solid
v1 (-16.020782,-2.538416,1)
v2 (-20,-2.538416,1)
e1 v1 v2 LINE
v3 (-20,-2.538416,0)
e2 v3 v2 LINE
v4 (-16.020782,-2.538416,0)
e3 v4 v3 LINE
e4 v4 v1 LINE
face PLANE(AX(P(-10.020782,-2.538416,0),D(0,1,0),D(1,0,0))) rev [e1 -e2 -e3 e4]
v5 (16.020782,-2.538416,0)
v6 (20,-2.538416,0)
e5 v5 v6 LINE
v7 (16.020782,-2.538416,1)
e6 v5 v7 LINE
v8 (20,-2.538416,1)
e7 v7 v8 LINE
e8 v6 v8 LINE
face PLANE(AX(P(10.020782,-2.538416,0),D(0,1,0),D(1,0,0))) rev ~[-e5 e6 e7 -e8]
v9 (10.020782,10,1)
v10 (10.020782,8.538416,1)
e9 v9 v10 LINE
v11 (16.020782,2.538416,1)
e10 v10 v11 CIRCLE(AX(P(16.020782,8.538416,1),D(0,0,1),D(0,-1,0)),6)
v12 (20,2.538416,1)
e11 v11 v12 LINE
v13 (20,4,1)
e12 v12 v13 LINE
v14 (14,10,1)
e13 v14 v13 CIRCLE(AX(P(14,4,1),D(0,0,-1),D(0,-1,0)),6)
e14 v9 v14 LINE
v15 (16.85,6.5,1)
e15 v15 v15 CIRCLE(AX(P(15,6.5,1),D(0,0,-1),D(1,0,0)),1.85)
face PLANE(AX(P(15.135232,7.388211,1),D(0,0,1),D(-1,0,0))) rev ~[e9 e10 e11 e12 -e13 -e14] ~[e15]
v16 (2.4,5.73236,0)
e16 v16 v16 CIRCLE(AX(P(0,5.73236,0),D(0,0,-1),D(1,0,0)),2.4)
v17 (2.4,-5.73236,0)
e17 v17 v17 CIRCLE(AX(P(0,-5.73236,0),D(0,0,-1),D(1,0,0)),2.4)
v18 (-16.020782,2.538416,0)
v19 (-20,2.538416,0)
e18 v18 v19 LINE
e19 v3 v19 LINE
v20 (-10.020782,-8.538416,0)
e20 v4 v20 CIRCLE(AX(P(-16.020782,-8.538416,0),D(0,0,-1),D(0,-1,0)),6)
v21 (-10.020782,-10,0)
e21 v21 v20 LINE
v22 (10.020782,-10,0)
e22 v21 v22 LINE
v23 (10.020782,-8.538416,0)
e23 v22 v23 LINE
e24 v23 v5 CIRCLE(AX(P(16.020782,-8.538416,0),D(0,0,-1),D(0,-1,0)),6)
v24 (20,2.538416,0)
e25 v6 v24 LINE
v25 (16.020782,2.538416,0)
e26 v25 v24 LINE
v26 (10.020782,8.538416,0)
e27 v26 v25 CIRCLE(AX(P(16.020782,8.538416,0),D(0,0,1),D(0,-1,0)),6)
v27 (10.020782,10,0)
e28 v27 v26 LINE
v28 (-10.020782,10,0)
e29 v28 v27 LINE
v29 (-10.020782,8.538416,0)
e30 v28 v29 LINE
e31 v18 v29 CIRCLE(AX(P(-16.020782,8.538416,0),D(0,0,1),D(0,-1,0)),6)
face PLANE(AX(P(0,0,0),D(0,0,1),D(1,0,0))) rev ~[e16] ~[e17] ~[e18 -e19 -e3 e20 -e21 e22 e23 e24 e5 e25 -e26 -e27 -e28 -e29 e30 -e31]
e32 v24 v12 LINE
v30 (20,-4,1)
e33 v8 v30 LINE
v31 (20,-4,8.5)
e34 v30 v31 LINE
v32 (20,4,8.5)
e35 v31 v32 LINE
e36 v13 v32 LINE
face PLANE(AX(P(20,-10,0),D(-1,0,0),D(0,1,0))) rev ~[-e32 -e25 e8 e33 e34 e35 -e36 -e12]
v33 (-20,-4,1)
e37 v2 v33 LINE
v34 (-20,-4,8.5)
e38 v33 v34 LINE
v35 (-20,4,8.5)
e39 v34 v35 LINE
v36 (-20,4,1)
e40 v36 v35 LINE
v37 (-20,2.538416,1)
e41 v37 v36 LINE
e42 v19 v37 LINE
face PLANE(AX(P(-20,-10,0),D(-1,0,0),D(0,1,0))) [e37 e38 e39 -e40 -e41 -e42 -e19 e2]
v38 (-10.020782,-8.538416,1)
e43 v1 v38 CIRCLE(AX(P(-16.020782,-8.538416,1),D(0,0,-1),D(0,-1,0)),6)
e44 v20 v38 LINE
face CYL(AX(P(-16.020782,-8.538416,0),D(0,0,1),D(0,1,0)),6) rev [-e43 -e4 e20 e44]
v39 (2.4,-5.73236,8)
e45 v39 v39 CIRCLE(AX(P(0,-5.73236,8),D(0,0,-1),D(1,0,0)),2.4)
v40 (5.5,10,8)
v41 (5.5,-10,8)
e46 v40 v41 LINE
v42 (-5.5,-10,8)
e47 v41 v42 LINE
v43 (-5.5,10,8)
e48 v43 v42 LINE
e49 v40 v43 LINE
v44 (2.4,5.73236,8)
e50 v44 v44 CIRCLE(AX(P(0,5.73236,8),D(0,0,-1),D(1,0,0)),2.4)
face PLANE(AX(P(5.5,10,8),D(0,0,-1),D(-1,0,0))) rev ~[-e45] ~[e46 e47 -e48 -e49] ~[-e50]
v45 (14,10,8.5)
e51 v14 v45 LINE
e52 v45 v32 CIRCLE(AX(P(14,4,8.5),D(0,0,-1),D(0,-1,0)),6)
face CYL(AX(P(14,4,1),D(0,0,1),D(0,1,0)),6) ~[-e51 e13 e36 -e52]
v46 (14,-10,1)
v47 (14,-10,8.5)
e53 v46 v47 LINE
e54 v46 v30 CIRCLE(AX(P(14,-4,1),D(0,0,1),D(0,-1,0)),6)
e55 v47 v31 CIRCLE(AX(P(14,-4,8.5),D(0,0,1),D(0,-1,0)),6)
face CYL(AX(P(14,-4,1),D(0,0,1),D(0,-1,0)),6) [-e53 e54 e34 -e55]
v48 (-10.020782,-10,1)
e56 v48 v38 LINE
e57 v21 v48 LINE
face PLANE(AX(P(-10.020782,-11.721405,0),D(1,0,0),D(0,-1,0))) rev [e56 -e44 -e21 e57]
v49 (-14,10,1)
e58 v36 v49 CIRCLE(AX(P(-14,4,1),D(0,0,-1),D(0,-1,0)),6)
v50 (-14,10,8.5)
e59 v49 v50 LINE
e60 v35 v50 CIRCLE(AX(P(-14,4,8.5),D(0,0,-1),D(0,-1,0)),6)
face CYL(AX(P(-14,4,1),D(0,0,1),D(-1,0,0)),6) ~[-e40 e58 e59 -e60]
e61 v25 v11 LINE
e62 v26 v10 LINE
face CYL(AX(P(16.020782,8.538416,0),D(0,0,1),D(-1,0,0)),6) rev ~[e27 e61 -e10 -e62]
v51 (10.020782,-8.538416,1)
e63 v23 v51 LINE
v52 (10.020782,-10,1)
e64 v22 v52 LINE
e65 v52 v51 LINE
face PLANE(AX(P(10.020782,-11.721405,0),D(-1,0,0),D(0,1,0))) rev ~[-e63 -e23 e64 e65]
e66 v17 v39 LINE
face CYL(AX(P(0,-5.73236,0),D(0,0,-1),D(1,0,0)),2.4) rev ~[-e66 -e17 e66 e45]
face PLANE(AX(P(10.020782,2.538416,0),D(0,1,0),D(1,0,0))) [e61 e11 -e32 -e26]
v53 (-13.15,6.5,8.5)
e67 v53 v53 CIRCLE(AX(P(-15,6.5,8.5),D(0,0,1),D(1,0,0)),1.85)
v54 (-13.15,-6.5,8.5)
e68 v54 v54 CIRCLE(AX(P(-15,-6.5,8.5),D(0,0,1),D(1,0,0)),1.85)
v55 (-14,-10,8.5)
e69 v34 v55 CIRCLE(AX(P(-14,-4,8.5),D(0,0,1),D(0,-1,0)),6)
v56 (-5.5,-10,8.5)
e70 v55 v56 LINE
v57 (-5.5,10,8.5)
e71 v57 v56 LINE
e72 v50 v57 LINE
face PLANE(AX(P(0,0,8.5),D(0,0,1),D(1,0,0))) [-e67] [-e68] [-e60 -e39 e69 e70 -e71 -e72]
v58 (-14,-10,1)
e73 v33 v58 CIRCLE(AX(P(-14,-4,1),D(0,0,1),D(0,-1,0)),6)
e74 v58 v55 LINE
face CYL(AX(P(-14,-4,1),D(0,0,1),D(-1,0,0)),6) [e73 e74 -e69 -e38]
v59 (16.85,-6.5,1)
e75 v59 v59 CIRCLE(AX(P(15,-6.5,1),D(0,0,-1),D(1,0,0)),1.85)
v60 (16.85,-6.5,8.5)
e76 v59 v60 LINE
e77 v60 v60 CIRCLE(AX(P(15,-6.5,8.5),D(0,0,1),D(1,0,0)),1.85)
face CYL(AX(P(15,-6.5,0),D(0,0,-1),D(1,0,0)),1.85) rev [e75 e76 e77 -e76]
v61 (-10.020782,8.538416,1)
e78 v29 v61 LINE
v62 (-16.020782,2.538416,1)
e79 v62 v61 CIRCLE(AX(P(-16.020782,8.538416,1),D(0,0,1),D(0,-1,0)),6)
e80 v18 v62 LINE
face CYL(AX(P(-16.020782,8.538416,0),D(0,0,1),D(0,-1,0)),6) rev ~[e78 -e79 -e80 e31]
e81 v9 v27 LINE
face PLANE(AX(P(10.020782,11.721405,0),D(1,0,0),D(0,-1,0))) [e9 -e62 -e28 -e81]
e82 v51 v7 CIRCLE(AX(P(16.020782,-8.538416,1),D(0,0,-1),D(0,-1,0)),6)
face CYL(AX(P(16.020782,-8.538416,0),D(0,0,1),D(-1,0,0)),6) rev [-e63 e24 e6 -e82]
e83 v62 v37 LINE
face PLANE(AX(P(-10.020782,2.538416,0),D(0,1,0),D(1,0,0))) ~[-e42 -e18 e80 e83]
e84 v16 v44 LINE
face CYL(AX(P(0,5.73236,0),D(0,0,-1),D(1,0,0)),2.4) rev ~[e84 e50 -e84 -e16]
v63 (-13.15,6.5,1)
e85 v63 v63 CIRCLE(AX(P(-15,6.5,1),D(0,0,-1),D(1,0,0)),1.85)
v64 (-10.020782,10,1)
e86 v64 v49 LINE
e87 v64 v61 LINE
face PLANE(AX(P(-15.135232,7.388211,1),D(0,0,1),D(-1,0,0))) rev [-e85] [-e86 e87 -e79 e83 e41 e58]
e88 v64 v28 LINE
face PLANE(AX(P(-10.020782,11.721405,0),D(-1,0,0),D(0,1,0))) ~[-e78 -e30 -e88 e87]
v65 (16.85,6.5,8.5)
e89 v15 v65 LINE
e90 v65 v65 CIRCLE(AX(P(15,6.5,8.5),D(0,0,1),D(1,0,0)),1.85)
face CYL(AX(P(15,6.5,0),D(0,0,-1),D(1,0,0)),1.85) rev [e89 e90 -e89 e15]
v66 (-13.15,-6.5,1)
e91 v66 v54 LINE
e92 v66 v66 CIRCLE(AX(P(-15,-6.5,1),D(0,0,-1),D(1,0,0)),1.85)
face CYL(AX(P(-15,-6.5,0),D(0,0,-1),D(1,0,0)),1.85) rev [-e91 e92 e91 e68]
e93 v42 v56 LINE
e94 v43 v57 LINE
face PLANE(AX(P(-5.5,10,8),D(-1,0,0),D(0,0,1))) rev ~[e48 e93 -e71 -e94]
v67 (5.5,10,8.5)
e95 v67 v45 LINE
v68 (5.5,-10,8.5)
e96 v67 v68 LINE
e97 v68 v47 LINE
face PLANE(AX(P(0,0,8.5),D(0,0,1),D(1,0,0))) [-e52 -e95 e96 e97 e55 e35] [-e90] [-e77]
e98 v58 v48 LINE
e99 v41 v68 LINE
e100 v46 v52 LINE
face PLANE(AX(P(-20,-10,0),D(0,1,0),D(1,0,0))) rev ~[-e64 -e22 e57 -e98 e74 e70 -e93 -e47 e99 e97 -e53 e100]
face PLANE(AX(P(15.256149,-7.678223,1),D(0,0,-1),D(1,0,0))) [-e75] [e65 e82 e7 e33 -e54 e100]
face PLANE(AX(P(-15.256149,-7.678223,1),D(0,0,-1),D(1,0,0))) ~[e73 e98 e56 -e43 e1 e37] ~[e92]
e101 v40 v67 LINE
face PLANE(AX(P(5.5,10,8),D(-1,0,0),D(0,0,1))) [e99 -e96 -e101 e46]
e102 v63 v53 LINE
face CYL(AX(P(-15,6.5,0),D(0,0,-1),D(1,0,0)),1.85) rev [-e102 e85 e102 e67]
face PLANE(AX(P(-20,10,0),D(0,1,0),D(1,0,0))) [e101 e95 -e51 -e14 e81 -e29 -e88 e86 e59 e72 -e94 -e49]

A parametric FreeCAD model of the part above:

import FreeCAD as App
import Part
import Sketcher
from FreeCAD import Vector


def edges_at(feature, points):
    """Names of the edges that pass closest to the given points."""
    edges = feature.Shape.Edges
    near = lambda p: min(range(len(edges)), key=lambda i: edges[i].distToShape(Part.Vertex(*p))[0])
    return sorted({f"Edge{near(p) + 1}" for p in points})

doc = App.newDocument("Part")
body = doc.addObject("PartDesign::Body", "Body")

sketch1 = body.newObject("Sketcher::SketchObject", "Sketch")
sketch1.AttachmentSupport = (doc.getObject("XY_Plane"), [""])
sketch1.MapMode = "FlatFace"
sketch1.addGeometry([
    Part.LineSegment(Vector(-20, 10, 0), Vector(-20, -10, 0)),
    Part.LineSegment(Vector(-20, -10, 0), Vector(20, -10, 0)),
    Part.LineSegment(Vector(20, -10, 0), Vector(20, 10, 0)),
    Part.LineSegment(Vector(20, 10, 0), Vector(-20, 10, 0)),
    Part.Circle(Vector(-15, -6.5, 0), Vector(0, 0, 1), 1.9),
    Part.Circle(Vector(15, -6.5, 0), Vector(0, 0, 1), 1.9),
    Part.Circle(Vector(-15, 6.5, 0), Vector(0, 0, 1), 1.9),
    Part.Circle(Vector(15, 6.5, 0), Vector(0, 0, 1), 1.9),
], False)
sketch1.addConstraint([
    Sketcher.Constraint("Coincident", 0, 2, 1, 1),
    Sketcher.Constraint("Coincident", 1, 2, 2, 1),
    Sketcher.Constraint("Coincident", 2, 2, 3, 1),
    Sketcher.Constraint("Coincident", 3, 2, 0, 1),
    Sketcher.Constraint("Vertical", 0),
    Sketcher.Constraint("Horizontal", 1),
    Sketcher.Constraint("Vertical", 2),
    Sketcher.Constraint("Horizontal", 3),
    Sketcher.Constraint("Equal", 4, 5),
    Sketcher.Constraint("Equal", 5, 6),
    Sketcher.Constraint("Equal", 6, 7),
    Sketcher.Constraint("Symmetric", 5, 3, 6, 3, -1, 1),
    Sketcher.Constraint("Symmetric", 4, 3, 7, 3, -1, 1),
    Sketcher.Constraint("Symmetric", 0, 2, 2, 2, -1, 1),
    Sketcher.Constraint("Symmetric", 4, 3, 5, 3, -2),
    Sketcher.Constraint("Diameter", 4, 3.7),
    Sketcher.Constraint("DistanceX", 1, 1, 1, 2, 40.0),
    Sketcher.Constraint("DistanceY", 0, 2, 0, 1, 20.0),
    Sketcher.Constraint("DistanceX", 4, 3, -1, 1, 15.0),
    Sketcher.Constraint("DistanceY", 4, 3, 6, 3, 13.0),
])
pad1 = body.newObject("PartDesign::Pad", "Pad")
pad1.Profile = sketch1
pad1.Length = 8.5

sketch2 = body.newObject("Sketcher::SketchObject", "Sketch001")
sketch2.AttachmentSupport = (doc.getObject("XY_Plane"), [""])
sketch2.MapMode = "FlatFace"
sketch2.addGeometry([
    Part.LineSegment(Vector(20, -14, 0), Vector(10, -12, 0)),
    Part.LineSegment(Vector(10, -12, 0), Vector(10, -3, 0)),
    Part.LineSegment(Vector(10, -3, 0), Vector(20, -3, 0)),
    Part.LineSegment(Vector(20, -3, 0), Vector(20, -14, 0)),
    Part.LineSegment(Vector(20, 3, 0), Vector(10, 3, 0)),
    Part.LineSegment(Vector(10, 3, 0), Vector(10, 12, 0)),
    Part.LineSegment(Vector(10, 12, 0), Vector(20, 13, 0)),
    Part.LineSegment(Vector(20, 13, 0), Vector(20, 3, 0)),
], False)
sketch2.addConstraint([
    Sketcher.Constraint("Coincident", 0, 2, 1, 1),
    Sketcher.Constraint("Coincident", 1, 2, 2, 1),
    Sketcher.Constraint("Coincident", 2, 2, 3, 1),
    Sketcher.Constraint("Coincident", 3, 2, 0, 1),
    Sketcher.Constraint("Coincident", 4, 2, 5, 1),
    Sketcher.Constraint("Coincident", 5, 2, 6, 1),
    Sketcher.Constraint("Coincident", 6, 2, 7, 1),
    Sketcher.Constraint("Coincident", 7, 2, 4, 1),
    Sketcher.Constraint("Vertical", 1),
    Sketcher.Constraint("Horizontal", 2),
    Sketcher.Constraint("Vertical", 3),
    Sketcher.Constraint("Horizontal", 4),
    Sketcher.Constraint("Vertical", 5),
    Sketcher.Constraint("Vertical", 7),
    Sketcher.Constraint("Symmetric", 1, 2, 4, 2, -1),
    Sketcher.Constraint("Vertical", 3, 2, 6, 2),
    Sketcher.Constraint("Equal", 1, 5),
    Sketcher.Constraint("DistanceX", -1, 1, 2, 2, 20.0),
    Sketcher.Constraint("DistanceY", 1, 1, 1, 2, 9.182989),
    Sketcher.Constraint("Distance", 0, 10.176809),
    Sketcher.Constraint("DistanceX", 2, 1, 2, 2, 9.979218),
    Sketcher.Constraint("DistanceY", 7, 2, 7, 1, 10.167723),
    Sketcher.Constraint("DistanceY", -1, 1, 6, 2, 12.706139),
])
pocket1 = body.newObject("PartDesign::Pocket", "Pocket")
pocket1.Profile = sketch2
pocket1.Length = 1
pocket1.Reversed = True
doc.recompute()

mirrored = body.newObject("PartDesign::Mirrored", "Mirrored")
mirrored.Originals = [pocket1]
mirrored.MirrorPlane = (doc.getObject("YZ_Plane"), [""])
body.Tip = mirrored

sketch3 = body.newObject("Sketcher::SketchObject", "Sketch002")
sketch3.AttachmentSupport = (doc.getObject("XY_Plane"), [""])
sketch3.MapMode = "FlatFace"
sketch3.addGeometry([
    Part.Circle(Vector(0, -5.7, 0), Vector(0, 0, 1), 2.4),
    Part.Circle(Vector(0, 5.7, 0), Vector(0, 0, 1), 2.4),
], False)
sketch3.addConstraint([
    Sketcher.Constraint("Equal", 0, 1),
    Sketcher.Constraint("Symmetric", 0, 3, 1, 3, -1, 1),
    Sketcher.Constraint("PointOnObject", 0, 3, -2),
    Sketcher.Constraint("Diameter", 0, 4.8),
    Sketcher.Constraint("DistanceY", 0, 3, -1, 1, 5.73236),
])
pocket2 = body.newObject("PartDesign::Pocket", "Pocket001")
pocket2.Profile = sketch3
pocket2.Type = "ThroughAll"
pocket2.Reversed = True

sketch4 = body.newObject("Sketcher::SketchObject", "Sketch003")
sketch4.AttachmentSupport = (doc.getObject("XZ_Plane"), [""])
sketch4.MapMode = "FlatFace"
sketch4.AttachmentOffset = App.Placement(Vector(0, 0, -10), App.Rotation())
sketch4.addGeometry([
    Part.LineSegment(Vector(5.5, 9, 0), Vector(5.5, 8, 0)),
    Part.LineSegment(Vector(5.5, 8, 0), Vector(-5.5, 8, 0)),
    Part.LineSegment(Vector(-5.5, 8, 0), Vector(-5.5, 9, 0)),
    Part.LineSegment(Vector(-5.5, 9, 0), Vector(5.5, 9, 0)),
], False)
sketch4.addConstraint([
    Sketcher.Constraint("Coincident", 0, 2, 1, 1),
    Sketcher.Constraint("Coincident", 1, 2, 2, 1),
    Sketcher.Constraint("Coincident", 2, 2, 3, 1),
    Sketcher.Constraint("Coincident", 3, 2, 0, 1),
    Sketcher.Constraint("Vertical", 0),
    Sketcher.Constraint("Horizontal", 1),
    Sketcher.Constraint("Vertical", 2),
    Sketcher.Constraint("Horizontal", 3),
    Sketcher.Constraint("DistanceX", 1, 2, 1, 1, 11.0),
    Sketcher.Constraint("DistanceY", 0, 2, 0, 1, 1.0),
    Sketcher.Constraint("DistanceY", -1, 1, 0, 2, 8.0),
    Sketcher.Constraint("DistanceX", -1, 1, 0, 2, 5.5),
])
pocket3 = body.newObject("PartDesign::Pocket", "Pocket002")
pocket3.Profile = sketch4
pocket3.Type = "ThroughAll"
pocket3.Reversed = True
doc.recompute()

fillet = body.newObject("PartDesign::Fillet", "Fillet")
fillet.Base = (pocket3, edges_at(pocket3, [
    (-10.021, 2.538, 0.5),
    (-10.021, -2.538, 0.5),
    (10.021, -2.538, 0.5),
    (10.021, 2.538, 0.5),
    (20, 10, 4.75),
    (20, -10, 4.75),
    (-20, -10, 4.75),
    (-20, 10, 4.75),
]))
fillet.Radius = 6

doc.recompute()
